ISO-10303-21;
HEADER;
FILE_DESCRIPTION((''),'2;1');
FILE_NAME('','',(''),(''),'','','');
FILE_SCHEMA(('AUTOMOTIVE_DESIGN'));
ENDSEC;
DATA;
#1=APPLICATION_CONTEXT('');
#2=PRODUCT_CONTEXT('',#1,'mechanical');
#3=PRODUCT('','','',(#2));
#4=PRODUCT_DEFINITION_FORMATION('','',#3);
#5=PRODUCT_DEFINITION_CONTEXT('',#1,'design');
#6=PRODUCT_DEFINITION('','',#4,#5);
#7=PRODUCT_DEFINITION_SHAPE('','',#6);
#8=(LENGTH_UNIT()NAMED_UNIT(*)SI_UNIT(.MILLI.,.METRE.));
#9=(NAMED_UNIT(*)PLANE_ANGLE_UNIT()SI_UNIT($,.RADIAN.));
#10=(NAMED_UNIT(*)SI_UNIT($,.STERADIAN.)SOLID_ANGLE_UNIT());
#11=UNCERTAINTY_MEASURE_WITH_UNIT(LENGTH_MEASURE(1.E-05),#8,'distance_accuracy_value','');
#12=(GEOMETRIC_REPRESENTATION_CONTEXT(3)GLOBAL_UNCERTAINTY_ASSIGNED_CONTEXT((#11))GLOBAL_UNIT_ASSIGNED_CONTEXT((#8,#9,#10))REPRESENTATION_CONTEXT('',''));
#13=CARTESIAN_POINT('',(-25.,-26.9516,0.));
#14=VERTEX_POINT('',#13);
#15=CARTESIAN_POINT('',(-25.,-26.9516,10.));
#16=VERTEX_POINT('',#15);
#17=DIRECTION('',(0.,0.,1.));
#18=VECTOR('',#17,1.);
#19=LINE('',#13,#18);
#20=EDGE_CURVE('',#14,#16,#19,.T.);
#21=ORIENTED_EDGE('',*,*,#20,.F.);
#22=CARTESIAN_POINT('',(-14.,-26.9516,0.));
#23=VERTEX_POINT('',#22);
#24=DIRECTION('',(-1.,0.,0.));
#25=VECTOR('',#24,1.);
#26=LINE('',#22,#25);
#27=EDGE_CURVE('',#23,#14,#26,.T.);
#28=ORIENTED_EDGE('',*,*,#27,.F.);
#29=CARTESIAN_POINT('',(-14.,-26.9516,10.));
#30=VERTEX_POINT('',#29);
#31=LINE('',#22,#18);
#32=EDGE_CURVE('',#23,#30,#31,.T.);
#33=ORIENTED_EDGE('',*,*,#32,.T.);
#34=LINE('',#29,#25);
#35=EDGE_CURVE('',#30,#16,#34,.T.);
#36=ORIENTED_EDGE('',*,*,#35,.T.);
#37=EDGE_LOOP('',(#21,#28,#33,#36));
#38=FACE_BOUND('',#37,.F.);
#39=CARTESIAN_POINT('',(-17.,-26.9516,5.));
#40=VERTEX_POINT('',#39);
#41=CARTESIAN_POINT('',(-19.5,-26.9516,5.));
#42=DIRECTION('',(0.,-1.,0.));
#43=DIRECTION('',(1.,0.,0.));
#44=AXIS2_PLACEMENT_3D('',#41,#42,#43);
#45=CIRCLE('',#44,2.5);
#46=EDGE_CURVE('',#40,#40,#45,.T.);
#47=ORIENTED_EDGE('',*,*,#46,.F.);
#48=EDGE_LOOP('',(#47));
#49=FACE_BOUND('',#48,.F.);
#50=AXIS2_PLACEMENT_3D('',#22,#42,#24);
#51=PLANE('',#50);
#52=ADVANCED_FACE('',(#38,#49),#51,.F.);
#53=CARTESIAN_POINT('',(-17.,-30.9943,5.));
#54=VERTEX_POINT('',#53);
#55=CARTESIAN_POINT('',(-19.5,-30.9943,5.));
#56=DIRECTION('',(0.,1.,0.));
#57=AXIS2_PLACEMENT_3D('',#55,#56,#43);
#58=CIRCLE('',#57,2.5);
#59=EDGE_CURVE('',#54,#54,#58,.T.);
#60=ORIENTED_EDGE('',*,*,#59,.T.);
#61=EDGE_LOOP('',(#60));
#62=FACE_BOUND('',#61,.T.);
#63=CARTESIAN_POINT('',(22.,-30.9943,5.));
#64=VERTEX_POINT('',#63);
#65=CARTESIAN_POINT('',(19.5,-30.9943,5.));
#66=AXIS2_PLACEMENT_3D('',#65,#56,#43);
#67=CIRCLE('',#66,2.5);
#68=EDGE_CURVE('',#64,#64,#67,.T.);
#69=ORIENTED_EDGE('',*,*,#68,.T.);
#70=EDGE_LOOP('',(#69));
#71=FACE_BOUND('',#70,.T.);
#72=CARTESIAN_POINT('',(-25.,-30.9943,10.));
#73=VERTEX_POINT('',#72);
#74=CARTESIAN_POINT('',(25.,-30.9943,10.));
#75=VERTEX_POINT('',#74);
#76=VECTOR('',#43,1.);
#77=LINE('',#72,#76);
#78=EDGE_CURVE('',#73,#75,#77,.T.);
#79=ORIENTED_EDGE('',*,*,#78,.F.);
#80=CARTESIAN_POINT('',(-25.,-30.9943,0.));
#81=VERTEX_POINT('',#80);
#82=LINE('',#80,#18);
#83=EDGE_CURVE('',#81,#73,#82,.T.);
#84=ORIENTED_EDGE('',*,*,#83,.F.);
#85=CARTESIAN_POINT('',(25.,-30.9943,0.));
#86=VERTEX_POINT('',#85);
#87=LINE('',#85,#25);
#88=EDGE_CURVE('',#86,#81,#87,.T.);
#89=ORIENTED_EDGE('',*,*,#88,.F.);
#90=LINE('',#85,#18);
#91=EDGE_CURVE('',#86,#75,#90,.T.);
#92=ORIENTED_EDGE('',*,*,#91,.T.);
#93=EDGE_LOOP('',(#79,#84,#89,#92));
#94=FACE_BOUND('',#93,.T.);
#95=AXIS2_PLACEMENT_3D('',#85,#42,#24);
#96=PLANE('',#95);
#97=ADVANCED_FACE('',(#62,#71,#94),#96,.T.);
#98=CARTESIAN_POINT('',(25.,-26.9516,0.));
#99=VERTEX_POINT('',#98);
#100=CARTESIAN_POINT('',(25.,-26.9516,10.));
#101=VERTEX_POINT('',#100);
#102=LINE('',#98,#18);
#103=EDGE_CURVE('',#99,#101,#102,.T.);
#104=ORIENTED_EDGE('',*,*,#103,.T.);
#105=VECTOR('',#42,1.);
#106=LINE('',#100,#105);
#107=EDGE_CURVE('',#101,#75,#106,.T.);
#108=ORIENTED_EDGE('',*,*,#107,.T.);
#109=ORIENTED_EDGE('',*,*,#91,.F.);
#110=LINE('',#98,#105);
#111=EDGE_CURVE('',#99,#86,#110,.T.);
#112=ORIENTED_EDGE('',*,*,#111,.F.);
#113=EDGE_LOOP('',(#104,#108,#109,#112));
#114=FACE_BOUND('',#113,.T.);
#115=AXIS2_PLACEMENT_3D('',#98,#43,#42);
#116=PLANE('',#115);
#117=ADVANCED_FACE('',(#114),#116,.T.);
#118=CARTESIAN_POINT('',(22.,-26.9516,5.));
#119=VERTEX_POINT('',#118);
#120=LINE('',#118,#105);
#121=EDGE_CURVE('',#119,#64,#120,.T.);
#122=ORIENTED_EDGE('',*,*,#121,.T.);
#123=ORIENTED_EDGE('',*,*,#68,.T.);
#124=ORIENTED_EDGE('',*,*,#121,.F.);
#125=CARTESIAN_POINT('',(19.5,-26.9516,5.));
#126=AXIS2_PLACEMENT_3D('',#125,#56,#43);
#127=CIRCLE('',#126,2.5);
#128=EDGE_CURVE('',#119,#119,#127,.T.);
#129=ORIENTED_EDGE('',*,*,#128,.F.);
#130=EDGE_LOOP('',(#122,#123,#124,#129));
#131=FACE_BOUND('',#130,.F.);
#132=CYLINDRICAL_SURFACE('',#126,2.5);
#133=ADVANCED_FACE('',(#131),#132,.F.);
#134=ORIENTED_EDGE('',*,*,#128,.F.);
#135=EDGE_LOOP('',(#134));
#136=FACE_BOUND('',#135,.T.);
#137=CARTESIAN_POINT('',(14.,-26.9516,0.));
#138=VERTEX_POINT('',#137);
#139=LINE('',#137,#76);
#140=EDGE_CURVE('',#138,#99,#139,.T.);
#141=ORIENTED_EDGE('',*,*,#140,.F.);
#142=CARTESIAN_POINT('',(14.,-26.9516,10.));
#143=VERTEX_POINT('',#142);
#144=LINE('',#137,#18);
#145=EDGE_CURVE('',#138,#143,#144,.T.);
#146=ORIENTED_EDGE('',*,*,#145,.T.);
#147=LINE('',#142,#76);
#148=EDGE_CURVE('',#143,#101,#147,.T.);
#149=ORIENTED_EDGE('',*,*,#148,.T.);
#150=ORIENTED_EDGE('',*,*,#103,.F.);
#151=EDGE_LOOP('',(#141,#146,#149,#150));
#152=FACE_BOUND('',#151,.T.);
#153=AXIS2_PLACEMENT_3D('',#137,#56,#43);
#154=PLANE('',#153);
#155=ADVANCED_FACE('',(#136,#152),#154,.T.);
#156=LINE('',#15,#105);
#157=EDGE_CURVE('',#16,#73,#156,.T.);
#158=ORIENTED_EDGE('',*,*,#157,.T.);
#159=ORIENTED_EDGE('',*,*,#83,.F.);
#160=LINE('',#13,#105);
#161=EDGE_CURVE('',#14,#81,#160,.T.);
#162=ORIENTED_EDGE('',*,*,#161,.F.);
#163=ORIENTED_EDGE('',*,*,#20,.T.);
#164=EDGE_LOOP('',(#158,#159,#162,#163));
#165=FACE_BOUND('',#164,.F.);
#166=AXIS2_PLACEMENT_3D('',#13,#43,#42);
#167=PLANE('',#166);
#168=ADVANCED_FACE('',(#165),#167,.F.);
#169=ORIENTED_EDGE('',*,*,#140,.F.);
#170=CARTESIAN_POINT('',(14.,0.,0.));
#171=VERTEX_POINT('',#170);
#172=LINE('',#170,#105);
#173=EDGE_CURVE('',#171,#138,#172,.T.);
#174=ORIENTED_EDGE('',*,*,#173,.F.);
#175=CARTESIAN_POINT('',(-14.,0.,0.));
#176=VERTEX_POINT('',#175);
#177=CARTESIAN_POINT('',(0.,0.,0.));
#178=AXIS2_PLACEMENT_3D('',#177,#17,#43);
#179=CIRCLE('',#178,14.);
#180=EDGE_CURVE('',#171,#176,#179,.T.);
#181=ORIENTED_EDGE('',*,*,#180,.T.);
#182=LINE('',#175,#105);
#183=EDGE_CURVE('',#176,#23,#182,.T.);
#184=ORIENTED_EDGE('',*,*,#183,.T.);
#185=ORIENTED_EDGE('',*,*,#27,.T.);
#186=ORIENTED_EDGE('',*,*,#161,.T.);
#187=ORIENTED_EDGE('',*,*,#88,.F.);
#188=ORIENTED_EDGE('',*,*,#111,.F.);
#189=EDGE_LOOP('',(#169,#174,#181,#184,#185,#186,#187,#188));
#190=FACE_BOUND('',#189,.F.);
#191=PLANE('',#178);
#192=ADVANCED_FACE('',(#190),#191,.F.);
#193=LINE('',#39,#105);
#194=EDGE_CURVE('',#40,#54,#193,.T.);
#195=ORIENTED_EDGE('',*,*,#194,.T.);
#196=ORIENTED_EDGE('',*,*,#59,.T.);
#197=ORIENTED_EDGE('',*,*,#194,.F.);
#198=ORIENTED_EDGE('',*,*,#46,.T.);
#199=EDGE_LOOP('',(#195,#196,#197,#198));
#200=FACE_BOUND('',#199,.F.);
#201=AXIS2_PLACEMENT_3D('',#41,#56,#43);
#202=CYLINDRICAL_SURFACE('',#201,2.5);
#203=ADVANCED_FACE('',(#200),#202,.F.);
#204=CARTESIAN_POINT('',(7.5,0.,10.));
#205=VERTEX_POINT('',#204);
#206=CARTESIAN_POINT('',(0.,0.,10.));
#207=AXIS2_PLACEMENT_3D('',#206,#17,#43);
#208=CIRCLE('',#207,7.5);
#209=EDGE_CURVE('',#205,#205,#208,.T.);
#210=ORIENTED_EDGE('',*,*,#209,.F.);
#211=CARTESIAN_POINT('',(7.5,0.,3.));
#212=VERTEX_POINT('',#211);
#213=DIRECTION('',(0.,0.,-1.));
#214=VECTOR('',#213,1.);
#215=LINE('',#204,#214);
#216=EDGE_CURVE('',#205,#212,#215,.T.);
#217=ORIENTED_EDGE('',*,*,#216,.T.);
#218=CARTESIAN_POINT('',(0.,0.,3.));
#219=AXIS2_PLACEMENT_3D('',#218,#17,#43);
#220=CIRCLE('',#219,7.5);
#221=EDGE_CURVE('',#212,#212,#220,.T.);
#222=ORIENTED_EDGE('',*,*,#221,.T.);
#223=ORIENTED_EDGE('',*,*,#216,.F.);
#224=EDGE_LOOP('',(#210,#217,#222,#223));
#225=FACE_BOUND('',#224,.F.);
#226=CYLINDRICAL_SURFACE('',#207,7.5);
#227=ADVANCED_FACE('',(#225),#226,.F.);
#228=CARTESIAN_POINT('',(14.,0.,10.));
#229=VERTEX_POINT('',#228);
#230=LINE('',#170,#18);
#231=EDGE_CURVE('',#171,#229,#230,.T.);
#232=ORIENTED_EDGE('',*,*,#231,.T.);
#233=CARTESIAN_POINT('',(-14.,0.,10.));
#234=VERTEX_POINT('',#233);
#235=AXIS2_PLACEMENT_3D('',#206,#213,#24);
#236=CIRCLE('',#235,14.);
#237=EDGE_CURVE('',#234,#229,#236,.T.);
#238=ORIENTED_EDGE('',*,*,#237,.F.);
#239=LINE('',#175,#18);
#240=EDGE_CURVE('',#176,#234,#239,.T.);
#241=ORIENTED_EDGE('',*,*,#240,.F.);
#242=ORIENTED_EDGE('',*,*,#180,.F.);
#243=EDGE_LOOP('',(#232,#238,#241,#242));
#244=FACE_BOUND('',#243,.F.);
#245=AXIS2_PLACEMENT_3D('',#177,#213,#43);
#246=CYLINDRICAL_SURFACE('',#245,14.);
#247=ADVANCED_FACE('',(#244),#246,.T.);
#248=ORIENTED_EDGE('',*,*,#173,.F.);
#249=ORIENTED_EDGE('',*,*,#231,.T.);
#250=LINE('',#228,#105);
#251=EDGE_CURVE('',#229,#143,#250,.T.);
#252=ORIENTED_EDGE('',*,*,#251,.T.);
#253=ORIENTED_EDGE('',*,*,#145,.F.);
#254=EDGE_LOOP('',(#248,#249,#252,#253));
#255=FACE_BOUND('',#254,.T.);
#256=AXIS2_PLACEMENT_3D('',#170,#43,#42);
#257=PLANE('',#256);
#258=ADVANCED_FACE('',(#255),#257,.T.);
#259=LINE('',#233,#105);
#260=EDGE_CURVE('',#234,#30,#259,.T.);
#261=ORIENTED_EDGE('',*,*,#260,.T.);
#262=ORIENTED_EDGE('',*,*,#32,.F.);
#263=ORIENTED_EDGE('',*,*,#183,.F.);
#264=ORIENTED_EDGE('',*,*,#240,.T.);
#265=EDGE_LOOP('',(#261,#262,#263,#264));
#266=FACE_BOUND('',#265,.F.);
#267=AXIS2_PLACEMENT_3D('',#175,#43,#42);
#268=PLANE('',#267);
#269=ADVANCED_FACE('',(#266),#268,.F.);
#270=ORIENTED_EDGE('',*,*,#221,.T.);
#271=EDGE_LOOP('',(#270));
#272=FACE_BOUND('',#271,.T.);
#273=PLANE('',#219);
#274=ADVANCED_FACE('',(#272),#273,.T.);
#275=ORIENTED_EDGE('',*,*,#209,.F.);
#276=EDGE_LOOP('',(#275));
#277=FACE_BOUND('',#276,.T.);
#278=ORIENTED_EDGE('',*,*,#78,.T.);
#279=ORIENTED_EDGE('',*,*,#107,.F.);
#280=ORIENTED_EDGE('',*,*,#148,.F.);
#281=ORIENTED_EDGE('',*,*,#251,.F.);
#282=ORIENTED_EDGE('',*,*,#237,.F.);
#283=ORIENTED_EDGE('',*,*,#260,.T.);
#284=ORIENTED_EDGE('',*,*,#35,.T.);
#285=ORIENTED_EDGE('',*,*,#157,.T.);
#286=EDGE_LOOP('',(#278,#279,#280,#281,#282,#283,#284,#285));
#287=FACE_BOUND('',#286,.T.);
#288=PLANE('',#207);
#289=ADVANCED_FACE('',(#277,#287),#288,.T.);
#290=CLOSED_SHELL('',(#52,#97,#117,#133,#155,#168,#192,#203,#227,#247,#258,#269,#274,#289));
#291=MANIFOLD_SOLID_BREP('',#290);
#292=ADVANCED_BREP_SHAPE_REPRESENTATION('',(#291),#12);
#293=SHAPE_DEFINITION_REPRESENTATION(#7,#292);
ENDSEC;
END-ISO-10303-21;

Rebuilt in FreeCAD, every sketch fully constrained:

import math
import FreeCAD as App
import Part
import Sketcher
Q = App.Units.Quantity

doc = App.newDocument("Part")
body = doc.addObject("PartDesign::Body", "Body")

sketch1 = doc.addObject("Sketcher::SketchObject", "Sketch")
body.addObject(sketch1)
sketch1.AttachmentSupport = (doc.XY_Plane, [""])
sketch1.MapMode = "FlatFace"
sketch1.addGeometry([
    Part.ArcOfCircle(Part.Circle(App.Vector(0, 0, 0), App.Vector(0, 0, 1), 14), math.radians(0), math.radians(180)),
    Part.LineSegment(App.Vector(-14, 0, 0), App.Vector(-14, -27, 0)),
    Part.LineSegment(App.Vector(-14, -27, 0), App.Vector(-25, -27, 0)),
    Part.LineSegment(App.Vector(-25, -27, 0), App.Vector(-25, -31, 0)),
    Part.LineSegment(App.Vector(-25, -31, 0), App.Vector(25, -31, 0)),
    Part.LineSegment(App.Vector(25, -31, 0), App.Vector(25, -27, 0)),
    Part.LineSegment(App.Vector(25, -27, 0), App.Vector(14, -27, 0)),
    Part.LineSegment(App.Vector(14, -27, 0), App.Vector(14, 0, 0)),
], False)
sketch1.addConstraint([
    Sketcher.Constraint("Tangent", 0, 2, 1, 1),
    Sketcher.Constraint("Coincident", 1, 2, 2, 1),
    Sketcher.Constraint("Coincident", 2, 2, 3, 1),
    Sketcher.Constraint("Coincident", 3, 2, 4, 1),
    Sketcher.Constraint("Coincident", 4, 2, 5, 1),
    Sketcher.Constraint("Coincident", 5, 2, 6, 1),
    Sketcher.Constraint("Coincident", 6, 2, 7, 1),
    Sketcher.Constraint("Tangent", 7, 2, 0, 1),
    Sketcher.Constraint("Vertical", 1),
    Sketcher.Constraint("Horizontal", 2),
    Sketcher.Constraint("Vertical", 3),
    Sketcher.Constraint("Horizontal", 4),
    Sketcher.Constraint("Vertical", 5),
    Sketcher.Constraint("Horizontal", 6),
    Sketcher.Constraint("Vertical", 7),
    Sketcher.Constraint("Coincident", 0, 3, -1, 1),
    Sketcher.Constraint("Symmetric", 2, 2, 5, 2, -2),
    Sketcher.Constraint("Radius", 0, Q("14 mm")),
    Sketcher.Constraint("DistanceX", 4, 1, 4, 2, Q("50 mm")),
    Sketcher.Constraint("DistanceY", 1, 2, 1, 1, Q("26.9516 mm")),
    Sketcher.Constraint("DistanceY", 3, 2, 3, 1, Q("4.0427 mm")),
])
pad1 = doc.addObject("PartDesign::Pad", "Pad")
body.addObject(pad1)
pad1.Profile = sketch1
pad1.Length = 10

sketch2 = doc.addObject("Sketcher::SketchObject", "Sketch001")
body.addObject(sketch2)
sketch2.AttachmentSupport = (doc.XZ_Plane, [""])
sketch2.MapMode = "FlatFace"
sketch2.AttachmentOffset = App.Placement(App.Vector(0, 0, 26.9516), App.Rotation())
sketch2.addGeometry([
    Part.Circle(App.Vector(-19.5, 5, 0), App.Vector(0, 0, 1), 2.5),
    Part.Circle(App.Vector(19.5, 5, 0), App.Vector(0, 0, 1), 2.5),
], False)
sketch2.addConstraint([
    Sketcher.Constraint("Equal", 0, 1),
    Sketcher.Constraint("Symmetric", 0, 3, 1, 3, -2),
    Sketcher.Constraint("Diameter", 0, Q("5 mm")),
    Sketcher.Constraint("DistanceY", -1, 1, 0, 3, Q("5 mm")),
    Sketcher.Constraint("DistanceX", 0, 3, 1, 3, Q("39 mm")),
])
pocket1 = doc.addObject("PartDesign::Pocket", "Pocket")
body.addObject(pocket1)
pocket1.Profile = sketch2
pocket1.Length = 5
pocket1.Reversed = True

sketch3 = doc.addObject("Sketcher::SketchObject", "Sketch002")
body.addObject(sketch3)
sketch3.AttachmentSupport = (doc.XY_Plane, [""])
sketch3.MapMode = "FlatFace"
sketch3.AttachmentOffset = App.Placement(App.Vector(0, 0, 10), App.Rotation())
sketch3.addGeometry(Part.Circle(App.Vector(0, 0, 0), App.Vector(0, 0, 1), 8), False)
sketch3.addConstraint([
    Sketcher.Constraint("Coincident", 0, 3, -1, 1),
    Sketcher.Constraint("Diameter", 0, Q("15 mm")),
])
pocket2 = doc.addObject("PartDesign::Pocket", "Pocket001")
body.addObject(pocket2)
pocket2.Profile = sketch3
pocket2.Length = 7

doc.recompute()
